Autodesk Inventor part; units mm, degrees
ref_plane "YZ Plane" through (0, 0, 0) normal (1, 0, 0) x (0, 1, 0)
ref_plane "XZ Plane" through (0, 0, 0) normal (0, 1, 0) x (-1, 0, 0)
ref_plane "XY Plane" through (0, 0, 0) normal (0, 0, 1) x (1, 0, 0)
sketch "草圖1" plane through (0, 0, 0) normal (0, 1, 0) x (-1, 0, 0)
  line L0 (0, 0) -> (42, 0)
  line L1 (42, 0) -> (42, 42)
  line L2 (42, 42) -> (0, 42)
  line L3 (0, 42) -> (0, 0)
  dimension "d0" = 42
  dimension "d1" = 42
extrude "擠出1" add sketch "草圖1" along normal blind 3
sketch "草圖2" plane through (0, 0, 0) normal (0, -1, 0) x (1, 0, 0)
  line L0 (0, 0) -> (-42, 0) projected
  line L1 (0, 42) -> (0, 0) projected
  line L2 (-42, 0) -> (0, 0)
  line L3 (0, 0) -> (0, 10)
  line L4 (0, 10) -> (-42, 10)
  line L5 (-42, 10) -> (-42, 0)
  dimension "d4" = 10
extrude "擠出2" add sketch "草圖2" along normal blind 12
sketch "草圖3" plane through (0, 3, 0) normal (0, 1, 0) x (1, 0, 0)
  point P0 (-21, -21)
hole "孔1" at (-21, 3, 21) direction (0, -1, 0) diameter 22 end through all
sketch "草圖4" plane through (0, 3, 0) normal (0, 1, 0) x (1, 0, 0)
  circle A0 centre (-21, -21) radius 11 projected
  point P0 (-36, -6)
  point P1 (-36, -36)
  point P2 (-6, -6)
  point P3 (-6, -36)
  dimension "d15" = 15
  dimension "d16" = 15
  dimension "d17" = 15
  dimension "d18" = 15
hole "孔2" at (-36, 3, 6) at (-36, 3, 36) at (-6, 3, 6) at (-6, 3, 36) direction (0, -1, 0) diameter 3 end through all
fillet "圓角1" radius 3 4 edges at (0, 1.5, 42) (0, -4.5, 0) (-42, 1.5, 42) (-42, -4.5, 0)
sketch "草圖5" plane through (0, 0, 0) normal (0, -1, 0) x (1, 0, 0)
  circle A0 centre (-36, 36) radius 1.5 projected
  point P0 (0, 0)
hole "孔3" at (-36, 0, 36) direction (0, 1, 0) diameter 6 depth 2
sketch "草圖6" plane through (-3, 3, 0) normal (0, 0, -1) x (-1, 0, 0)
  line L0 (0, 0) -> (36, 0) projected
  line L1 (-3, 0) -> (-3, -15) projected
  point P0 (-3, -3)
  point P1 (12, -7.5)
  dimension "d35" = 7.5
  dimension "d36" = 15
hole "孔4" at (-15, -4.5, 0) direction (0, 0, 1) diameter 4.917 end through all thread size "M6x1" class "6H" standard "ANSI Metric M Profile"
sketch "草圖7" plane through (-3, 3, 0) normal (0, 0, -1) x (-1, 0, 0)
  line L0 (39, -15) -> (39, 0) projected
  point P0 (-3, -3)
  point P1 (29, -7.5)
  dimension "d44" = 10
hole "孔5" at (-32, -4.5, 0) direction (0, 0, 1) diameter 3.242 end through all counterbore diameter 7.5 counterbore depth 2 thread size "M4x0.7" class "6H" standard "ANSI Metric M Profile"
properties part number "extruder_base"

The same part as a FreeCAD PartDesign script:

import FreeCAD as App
import Part
import Sketcher
Q = App.Units.Quantity


def edges_at(feature, points):
    """Names of the edges that pass closest to the given points."""
    edges = feature.Shape.Edges
    near = lambda p: min(range(len(edges)), key=lambda i: edges[i].distToShape(Part.Vertex(*p))[0])
    return sorted({f"Edge{near(p) + 1}" for p in points})


def add_polygon(sketch, points):
    """Adds a closed chain of lines whose ends are joined by coincident constraints."""
    first, n = sketch.GeometryCount, len(points)
    for a, b in zip(points, points[1:] + points[:1]):
        sketch.addGeometry(Part.LineSegment(App.Vector(*a, 0), App.Vector(*b, 0)), False)
    for i in range(n):
        sketch.addConstraint(Sketcher.Constraint("Coincident", first + i, 2, first + (i + 1) % n, 1))

doc = App.newDocument("Part")
body = doc.addObject("PartDesign::Body", "Body")

sketch1 = body.newObject("Sketcher::SketchObject", "Sketch")
sketch1.AttachmentSupport = (doc.getObject("XZ_Plane"), [""])
sketch1.MapMode = "FlatFace"
add_polygon(sketch1, [(0, 42), (0, 0), (-42, 0), (-42, 42)])
sketch1.addConstraint(Sketcher.Constraint("Vertical", 0))
sketch1.addConstraint(Sketcher.Constraint("Horizontal", 1))
sketch1.addConstraint(Sketcher.Constraint("Vertical", 2))
sketch1.addConstraint(Sketcher.Constraint("Horizontal", 3))
sketch1.addConstraint(Sketcher.Constraint("Coincident", 0, 2, -1, 1))
sketch1.addConstraint(Sketcher.Constraint("Equal", 3, 0))
sketch1.addConstraint(Sketcher.Constraint("DistanceX", 1, 2, 1, 1, Q("42 mm")))
pad1 = body.newObject("PartDesign::Pad", "Pad")
pad1.Profile = sketch1
pad1.Length = 3
pad1.Reversed = True

sketch2 = body.newObject("Sketcher::SketchObject", "Sketch001")
sketch2.AttachmentSupport = (doc.getObject("XZ_Plane"), [""])
sketch2.MapMode = "FlatFace"
add_polygon(sketch2, [(-42, 0), (0, 0), (0, 10), (-42, 10)])
sketch2.addConstraint(Sketcher.Constraint("Horizontal", 0))
sketch2.addConstraint(Sketcher.Constraint("Vertical", 1))
sketch2.addConstraint(Sketcher.Constraint("Horizontal", 2))
sketch2.addConstraint(Sketcher.Constraint("Vertical", 3))
sketch2.addConstraint(Sketcher.Constraint("Coincident", 0, 2, -1, 1))
sketch2.addConstraint(Sketcher.Constraint("DistanceY", 1, 1, 1, 2, Q("10 mm")))
sketch2.addConstraint(Sketcher.Constraint("DistanceX", 0, 1, 0, 2, Q("42 mm")))
pad2 = body.newObject("PartDesign::Pad", "Pad001")
pad2.Profile = sketch2
pad2.Length = 12

sketch3 = body.newObject("Sketcher::SketchObject", "Sketch002")
sketch3.AttachmentSupport = (doc.getObject("XZ_Plane"), [""])
sketch3.MapMode = "FlatFace"
sketch3.AttachmentOffset = App.Placement(App.Vector(0, 0, -3), App.Rotation())
sketch3.addGeometry(Part.Circle(App.Vector(-21, 21, 0), App.Vector(0, 0, 1), 11), False)
sketch3.addConstraint(Sketcher.Constraint("Diameter", 0, Q("22 mm")))
sketch3.addConstraint(Sketcher.Constraint("DistanceX", 0, 3, -1, 1, Q("21 mm")))
sketch3.addConstraint(Sketcher.Constraint("DistanceY", -1, 1, 0, 3, Q("21 mm")))
doc.recompute()
hole = body.newObject("PartDesign::Hole", "Hole")
hole.Profile = sketch3
hole.ThreadType = "None"
hole.Diameter = 22
hole.DepthType = "ThroughAll"
hole.Reversed = True

sketch4 = body.newObject("Sketcher::SketchObject", "Sketch003")
sketch4.AttachmentSupport = (doc.getObject("XZ_Plane"), [""])
sketch4.MapMode = "FlatFace"
sketch4.AttachmentOffset = App.Placement(App.Vector(0, 0, -3), App.Rotation())
sketch4.addGeometry(Part.Circle(App.Vector(-36, 6, 0), App.Vector(0, 0, 1), 1.5), False)
sketch4.addGeometry(Part.Circle(App.Vector(-36, 36, 0), App.Vector(0, 0, 1), 1.5), False)
sketch4.addGeometry(Part.Circle(App.Vector(-6, 6, 0), App.Vector(0, 0, 1), 1.5), False)
sketch4.addGeometry(Part.Circle(App.Vector(-6, 36, 0), App.Vector(0, 0, 1), 1.5), False)
sketch4.addConstraint(Sketcher.Constraint("Equal", 0, 1))
sketch4.addConstraint(Sketcher.Constraint("Equal", 1, 2))
sketch4.addConstraint(Sketcher.Constraint("Equal", 2, 3))
sketch4.addConstraint(Sketcher.Constraint("Horizontal", 0, 3, 2, 3))
sketch4.addConstraint(Sketcher.Constraint("Horizontal", 1, 3, 3, 3))
sketch4.addConstraint(Sketcher.Constraint("Vertical", 0, 3, 1, 3))
sketch4.addConstraint(Sketcher.Constraint("Vertical", 2, 3, 3, 3))
sketch4.addConstraint(Sketcher.Constraint("Diameter", 0, Q("3 mm")))
sketch4.addConstraint(Sketcher.Constraint("DistanceX", 0, 3, -1, 1, Q("36 mm")))
sketch4.addConstraint(Sketcher.Constraint("DistanceY", -1, 1, 0, 3, Q("6 mm")))
sketch4.addConstraint(Sketcher.Constraint("DistanceY", -1, 1, 1, 3, Q("36 mm")))
sketch4.addConstraint(Sketcher.Constraint("DistanceX", 2, 3, -1, 1, Q("6 mm")))
doc.recompute()
hole2 = body.newObject("PartDesign::Hole", "Hole001")
hole2.Profile = sketch4
hole2.ThreadType = "None"
hole2.Diameter = 3
hole2.DepthType = "ThroughAll"
hole2.Reversed = True
doc.recompute()

fillet = body.newObject("PartDesign::Fillet", "Fillet")
fillet.Base = (hole2, edges_at(hole2, [
    (0, 1.5, 42),
    (0, -4.5, 0),
    (-42, 1.5, 42),
    (-42, -4.5, 0),
]))
fillet.Radius = 3

sketch5 = body.newObject("Sketcher::SketchObject", "Sketch004")
sketch5.AttachmentSupport = (doc.getObject("XZ_Plane"), [""])
sketch5.MapMode = "FlatFace"
sketch5.addGeometry(Part.Circle(App.Vector(-36, 36, 0), App.Vector(0, 0, 1), 3), False)
sketch5.addConstraint(Sketcher.Constraint("Diameter", 0, Q("6 mm")))
sketch5.addConstraint(Sketcher.Constraint("DistanceX", 0, 3, -1, 1, Q("36 mm")))
sketch5.addConstraint(Sketcher.Constraint("DistanceY", -1, 1, 0, 3, Q("36 mm")))
doc.recompute()
hole3 = body.newObject("PartDesign::Hole", "Hole002")
hole3.Profile = sketch5
hole3.ThreadType = "None"
hole3.Diameter = 6
hole3.DepthType = "Dimension"
hole3.Depth = 2
hole3.DrillPoint = "Flat"

sketch6 = body.newObject("Sketcher::SketchObject", "Sketch005")
sketch6.AttachmentSupport = (doc.getObject("XY_Plane"), [""])
sketch6.MapMode = "FlatFace"
sketch6.addGeometry(Part.Circle(App.Vector(-15, -4.5, 0), App.Vector(0, 0, 1), 2.5), False)
sketch6.addConstraint(Sketcher.Constraint("Diameter", 0, Q("4.917 mm")))
sketch6.addConstraint(Sketcher.Constraint("DistanceX", 0, 3, -1, 1, Q("15 mm")))
sketch6.addConstraint(Sketcher.Constraint("DistanceY", 0, 3, -1, 1, Q("4.5 mm")))
doc.recompute()
hole4 = body.newObject("PartDesign::Hole", "Hole003")
hole4.Profile = sketch6
hole4.ThreadType = "None"
hole4.Diameter = 4.917
hole4.DepthType = "ThroughAll"
hole4.Reversed = True

sketch7 = body.newObject("Sketcher::SketchObject", "Sketch006")
sketch7.AttachmentSupport = (doc.getObject("XY_Plane"), [""])
sketch7.MapMode = "FlatFace"
sketch7.addGeometry(Part.Circle(App.Vector(-32, -4.5, 0), App.Vector(0, 0, 1), 1.6), False)
sketch7.addConstraint(Sketcher.Constraint("Diameter", 0, Q("3.242 mm")))
sketch7.addConstraint(Sketcher.Constraint("DistanceX", 0, 3, -1, 1, Q("32 mm")))
sketch7.addConstraint(Sketcher.Constraint("DistanceY", 0, 3, -1, 1, Q("4.5 mm")))
doc.recompute()
hole5 = body.newObject("PartDesign::Hole", "Hole004")
hole5.Profile = sketch7
hole5.ThreadType = "None"
hole5.Diameter = 3.242
hole5.DepthType = "ThroughAll"
hole5.HoleCutType = "Counterbore"
hole5.HoleCutDiameter = 7.5
hole5.HoleCutDepth = 2
hole5.Reversed = True

doc.recompute()
